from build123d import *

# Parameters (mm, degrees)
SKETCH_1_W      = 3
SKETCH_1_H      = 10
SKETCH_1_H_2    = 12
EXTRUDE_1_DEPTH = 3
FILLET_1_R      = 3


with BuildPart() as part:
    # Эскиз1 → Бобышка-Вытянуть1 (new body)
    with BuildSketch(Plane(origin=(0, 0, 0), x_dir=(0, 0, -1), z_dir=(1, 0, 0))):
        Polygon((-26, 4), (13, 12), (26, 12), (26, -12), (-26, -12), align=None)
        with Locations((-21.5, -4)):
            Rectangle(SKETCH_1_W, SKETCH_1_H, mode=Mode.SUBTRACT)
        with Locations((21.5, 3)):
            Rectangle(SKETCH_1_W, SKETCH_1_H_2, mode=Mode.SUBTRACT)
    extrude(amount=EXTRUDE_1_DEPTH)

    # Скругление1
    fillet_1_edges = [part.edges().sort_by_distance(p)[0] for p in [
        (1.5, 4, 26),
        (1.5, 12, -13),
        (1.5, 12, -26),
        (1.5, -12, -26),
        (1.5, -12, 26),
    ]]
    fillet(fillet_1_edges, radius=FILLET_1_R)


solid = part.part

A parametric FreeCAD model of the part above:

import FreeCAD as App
import Part
import Sketcher


def edges_at(feature, points):
    """Names of the edges that pass closest to the given points."""
    edges = feature.Shape.Edges
    near = lambda p: min(range(len(edges)), key=lambda i: edges[i].distToShape(Part.Vertex(*p))[0])
    return sorted({f"Edge{near(p) + 1}" for p in points})


def add_polygon(sketch, points):
    """Adds a closed chain of lines whose ends are joined by coincident constraints."""
    first, n = sketch.GeometryCount, len(points)
    for a, b in zip(points, points[1:] + points[:1]):
        sketch.addGeometry(Part.LineSegment(App.Vector(*a, 0), App.Vector(*b, 0)), False)
    for i in range(n):
        sketch.addConstraint(Sketcher.Constraint("Coincident", first + i, 2, first + (i + 1) % n, 1))

doc = App.newDocument("Part")
params = doc.addObject("Spreadsheet::Sheet", "Params")
for row, (alias, value) in enumerate([
    ("sketch1_width", "16 mm"),
    ("sketch1_width2", "24 mm"),
    ("sketch1_width3", "10 mm"),
    ("sketch1_width4", "12 mm"),
    ("sketch1_height", "52 mm"),
    ("pad1_length", "3 mm"),
    ("fillet_radius", "3 mm"),
], start=1):
    params.set(f"A{row}", alias)
    params.set(f"B{row}", "=" + value)
    params.setAlias(f"B{row}", alias)

body = doc.addObject("PartDesign::Body", "Body")

sketch1 = body.newObject("Sketcher::SketchObject", "Sketch")
sketch1.AttachmentSupport = (doc.getObject("YZ_Plane"), [""])
sketch1.MapMode = "FlatFace"
add_polygon(sketch1, [(12, -13), (4, 26), (-12, 26), (-12, -26), (12, -26)])
add_polygon(sketch1, [(-9, 23), (1, 23), (1, 20), (-9, 20)])
add_polygon(sketch1, [(-3, -20), (9, -20), (9, -23), (-3, -23)])
sketch1.addConstraint([
    Sketcher.Constraint("Horizontal", 1),
    Sketcher.Constraint("Vertical", 2),
    Sketcher.Constraint("Horizontal", 3),
    Sketcher.Constraint("Vertical", 4),
    Sketcher.Constraint("Horizontal", 5),
    Sketcher.Constraint("Vertical", 6),
    Sketcher.Constraint("Horizontal", 7),
    Sketcher.Constraint("Vertical", 8),
    Sketcher.Constraint("Horizontal", 9),
    Sketcher.Constraint("Vertical", 10),
    Sketcher.Constraint("Horizontal", 11),
    Sketcher.Constraint("Vertical", 12),
    Sketcher.Constraint("Symmetric", 1, 2, 3, 2, -1, 1),
    Sketcher.Constraint("Symmetric", 7, 2, 9, 2, -1, 1),
    Sketcher.Constraint("Equal", 8, 10),
    Sketcher.Constraint("DistanceX", 1, 2, 1, 1, 16.0),
    Sketcher.Constraint("DistanceX", 3, 1, 3, 2, 24.0),
    Sketcher.Constraint("DistanceX", 5, 1, 5, 2, 10.0),
    Sketcher.Constraint("DistanceX", 9, 1, 9, 2, 12.0),
    Sketcher.Constraint("DistanceY", 2, 2, 2, 1, 52.0),
    Sketcher.Constraint("DistanceY", 4, 1, 4, 2, 13.0),
    Sketcher.Constraint("DistanceY", 6, 2, 6, 1, 3.0),
    Sketcher.Constraint("DistanceX", -1, 1, 5, 2, 1.0),
    Sketcher.Constraint("DistanceY", -1, 1, 5, 2, 23.0),
])
sketch1.setExpression("Constraints[28]", "Params.sketch1_width")
sketch1.setExpression("Constraints[29]", "Params.sketch1_width2")
sketch1.setExpression("Constraints[30]", "Params.sketch1_width3")
sketch1.setExpression("Constraints[31]", "Params.sketch1_width4")
sketch1.setExpression("Constraints[32]", "Params.sketch1_height")
pad1 = body.newObject("PartDesign::Pad", "Pad")
pad1.Profile = sketch1
pad1.setExpression("Length", "Params.pad1_length")
doc.recompute()

fillet = body.newObject("PartDesign::Fillet", "Fillet")
fillet.Base = (pad1, edges_at(pad1, [
    (1.5, 4, 26),
    (1.5, 12, -13),
    (1.5, 12, -26),
    (1.5, -12, -26),
    (1.5, -12, 26),
]))
fillet.setExpression("Radius", "Params.fillet_radius")

doc.recompute()
